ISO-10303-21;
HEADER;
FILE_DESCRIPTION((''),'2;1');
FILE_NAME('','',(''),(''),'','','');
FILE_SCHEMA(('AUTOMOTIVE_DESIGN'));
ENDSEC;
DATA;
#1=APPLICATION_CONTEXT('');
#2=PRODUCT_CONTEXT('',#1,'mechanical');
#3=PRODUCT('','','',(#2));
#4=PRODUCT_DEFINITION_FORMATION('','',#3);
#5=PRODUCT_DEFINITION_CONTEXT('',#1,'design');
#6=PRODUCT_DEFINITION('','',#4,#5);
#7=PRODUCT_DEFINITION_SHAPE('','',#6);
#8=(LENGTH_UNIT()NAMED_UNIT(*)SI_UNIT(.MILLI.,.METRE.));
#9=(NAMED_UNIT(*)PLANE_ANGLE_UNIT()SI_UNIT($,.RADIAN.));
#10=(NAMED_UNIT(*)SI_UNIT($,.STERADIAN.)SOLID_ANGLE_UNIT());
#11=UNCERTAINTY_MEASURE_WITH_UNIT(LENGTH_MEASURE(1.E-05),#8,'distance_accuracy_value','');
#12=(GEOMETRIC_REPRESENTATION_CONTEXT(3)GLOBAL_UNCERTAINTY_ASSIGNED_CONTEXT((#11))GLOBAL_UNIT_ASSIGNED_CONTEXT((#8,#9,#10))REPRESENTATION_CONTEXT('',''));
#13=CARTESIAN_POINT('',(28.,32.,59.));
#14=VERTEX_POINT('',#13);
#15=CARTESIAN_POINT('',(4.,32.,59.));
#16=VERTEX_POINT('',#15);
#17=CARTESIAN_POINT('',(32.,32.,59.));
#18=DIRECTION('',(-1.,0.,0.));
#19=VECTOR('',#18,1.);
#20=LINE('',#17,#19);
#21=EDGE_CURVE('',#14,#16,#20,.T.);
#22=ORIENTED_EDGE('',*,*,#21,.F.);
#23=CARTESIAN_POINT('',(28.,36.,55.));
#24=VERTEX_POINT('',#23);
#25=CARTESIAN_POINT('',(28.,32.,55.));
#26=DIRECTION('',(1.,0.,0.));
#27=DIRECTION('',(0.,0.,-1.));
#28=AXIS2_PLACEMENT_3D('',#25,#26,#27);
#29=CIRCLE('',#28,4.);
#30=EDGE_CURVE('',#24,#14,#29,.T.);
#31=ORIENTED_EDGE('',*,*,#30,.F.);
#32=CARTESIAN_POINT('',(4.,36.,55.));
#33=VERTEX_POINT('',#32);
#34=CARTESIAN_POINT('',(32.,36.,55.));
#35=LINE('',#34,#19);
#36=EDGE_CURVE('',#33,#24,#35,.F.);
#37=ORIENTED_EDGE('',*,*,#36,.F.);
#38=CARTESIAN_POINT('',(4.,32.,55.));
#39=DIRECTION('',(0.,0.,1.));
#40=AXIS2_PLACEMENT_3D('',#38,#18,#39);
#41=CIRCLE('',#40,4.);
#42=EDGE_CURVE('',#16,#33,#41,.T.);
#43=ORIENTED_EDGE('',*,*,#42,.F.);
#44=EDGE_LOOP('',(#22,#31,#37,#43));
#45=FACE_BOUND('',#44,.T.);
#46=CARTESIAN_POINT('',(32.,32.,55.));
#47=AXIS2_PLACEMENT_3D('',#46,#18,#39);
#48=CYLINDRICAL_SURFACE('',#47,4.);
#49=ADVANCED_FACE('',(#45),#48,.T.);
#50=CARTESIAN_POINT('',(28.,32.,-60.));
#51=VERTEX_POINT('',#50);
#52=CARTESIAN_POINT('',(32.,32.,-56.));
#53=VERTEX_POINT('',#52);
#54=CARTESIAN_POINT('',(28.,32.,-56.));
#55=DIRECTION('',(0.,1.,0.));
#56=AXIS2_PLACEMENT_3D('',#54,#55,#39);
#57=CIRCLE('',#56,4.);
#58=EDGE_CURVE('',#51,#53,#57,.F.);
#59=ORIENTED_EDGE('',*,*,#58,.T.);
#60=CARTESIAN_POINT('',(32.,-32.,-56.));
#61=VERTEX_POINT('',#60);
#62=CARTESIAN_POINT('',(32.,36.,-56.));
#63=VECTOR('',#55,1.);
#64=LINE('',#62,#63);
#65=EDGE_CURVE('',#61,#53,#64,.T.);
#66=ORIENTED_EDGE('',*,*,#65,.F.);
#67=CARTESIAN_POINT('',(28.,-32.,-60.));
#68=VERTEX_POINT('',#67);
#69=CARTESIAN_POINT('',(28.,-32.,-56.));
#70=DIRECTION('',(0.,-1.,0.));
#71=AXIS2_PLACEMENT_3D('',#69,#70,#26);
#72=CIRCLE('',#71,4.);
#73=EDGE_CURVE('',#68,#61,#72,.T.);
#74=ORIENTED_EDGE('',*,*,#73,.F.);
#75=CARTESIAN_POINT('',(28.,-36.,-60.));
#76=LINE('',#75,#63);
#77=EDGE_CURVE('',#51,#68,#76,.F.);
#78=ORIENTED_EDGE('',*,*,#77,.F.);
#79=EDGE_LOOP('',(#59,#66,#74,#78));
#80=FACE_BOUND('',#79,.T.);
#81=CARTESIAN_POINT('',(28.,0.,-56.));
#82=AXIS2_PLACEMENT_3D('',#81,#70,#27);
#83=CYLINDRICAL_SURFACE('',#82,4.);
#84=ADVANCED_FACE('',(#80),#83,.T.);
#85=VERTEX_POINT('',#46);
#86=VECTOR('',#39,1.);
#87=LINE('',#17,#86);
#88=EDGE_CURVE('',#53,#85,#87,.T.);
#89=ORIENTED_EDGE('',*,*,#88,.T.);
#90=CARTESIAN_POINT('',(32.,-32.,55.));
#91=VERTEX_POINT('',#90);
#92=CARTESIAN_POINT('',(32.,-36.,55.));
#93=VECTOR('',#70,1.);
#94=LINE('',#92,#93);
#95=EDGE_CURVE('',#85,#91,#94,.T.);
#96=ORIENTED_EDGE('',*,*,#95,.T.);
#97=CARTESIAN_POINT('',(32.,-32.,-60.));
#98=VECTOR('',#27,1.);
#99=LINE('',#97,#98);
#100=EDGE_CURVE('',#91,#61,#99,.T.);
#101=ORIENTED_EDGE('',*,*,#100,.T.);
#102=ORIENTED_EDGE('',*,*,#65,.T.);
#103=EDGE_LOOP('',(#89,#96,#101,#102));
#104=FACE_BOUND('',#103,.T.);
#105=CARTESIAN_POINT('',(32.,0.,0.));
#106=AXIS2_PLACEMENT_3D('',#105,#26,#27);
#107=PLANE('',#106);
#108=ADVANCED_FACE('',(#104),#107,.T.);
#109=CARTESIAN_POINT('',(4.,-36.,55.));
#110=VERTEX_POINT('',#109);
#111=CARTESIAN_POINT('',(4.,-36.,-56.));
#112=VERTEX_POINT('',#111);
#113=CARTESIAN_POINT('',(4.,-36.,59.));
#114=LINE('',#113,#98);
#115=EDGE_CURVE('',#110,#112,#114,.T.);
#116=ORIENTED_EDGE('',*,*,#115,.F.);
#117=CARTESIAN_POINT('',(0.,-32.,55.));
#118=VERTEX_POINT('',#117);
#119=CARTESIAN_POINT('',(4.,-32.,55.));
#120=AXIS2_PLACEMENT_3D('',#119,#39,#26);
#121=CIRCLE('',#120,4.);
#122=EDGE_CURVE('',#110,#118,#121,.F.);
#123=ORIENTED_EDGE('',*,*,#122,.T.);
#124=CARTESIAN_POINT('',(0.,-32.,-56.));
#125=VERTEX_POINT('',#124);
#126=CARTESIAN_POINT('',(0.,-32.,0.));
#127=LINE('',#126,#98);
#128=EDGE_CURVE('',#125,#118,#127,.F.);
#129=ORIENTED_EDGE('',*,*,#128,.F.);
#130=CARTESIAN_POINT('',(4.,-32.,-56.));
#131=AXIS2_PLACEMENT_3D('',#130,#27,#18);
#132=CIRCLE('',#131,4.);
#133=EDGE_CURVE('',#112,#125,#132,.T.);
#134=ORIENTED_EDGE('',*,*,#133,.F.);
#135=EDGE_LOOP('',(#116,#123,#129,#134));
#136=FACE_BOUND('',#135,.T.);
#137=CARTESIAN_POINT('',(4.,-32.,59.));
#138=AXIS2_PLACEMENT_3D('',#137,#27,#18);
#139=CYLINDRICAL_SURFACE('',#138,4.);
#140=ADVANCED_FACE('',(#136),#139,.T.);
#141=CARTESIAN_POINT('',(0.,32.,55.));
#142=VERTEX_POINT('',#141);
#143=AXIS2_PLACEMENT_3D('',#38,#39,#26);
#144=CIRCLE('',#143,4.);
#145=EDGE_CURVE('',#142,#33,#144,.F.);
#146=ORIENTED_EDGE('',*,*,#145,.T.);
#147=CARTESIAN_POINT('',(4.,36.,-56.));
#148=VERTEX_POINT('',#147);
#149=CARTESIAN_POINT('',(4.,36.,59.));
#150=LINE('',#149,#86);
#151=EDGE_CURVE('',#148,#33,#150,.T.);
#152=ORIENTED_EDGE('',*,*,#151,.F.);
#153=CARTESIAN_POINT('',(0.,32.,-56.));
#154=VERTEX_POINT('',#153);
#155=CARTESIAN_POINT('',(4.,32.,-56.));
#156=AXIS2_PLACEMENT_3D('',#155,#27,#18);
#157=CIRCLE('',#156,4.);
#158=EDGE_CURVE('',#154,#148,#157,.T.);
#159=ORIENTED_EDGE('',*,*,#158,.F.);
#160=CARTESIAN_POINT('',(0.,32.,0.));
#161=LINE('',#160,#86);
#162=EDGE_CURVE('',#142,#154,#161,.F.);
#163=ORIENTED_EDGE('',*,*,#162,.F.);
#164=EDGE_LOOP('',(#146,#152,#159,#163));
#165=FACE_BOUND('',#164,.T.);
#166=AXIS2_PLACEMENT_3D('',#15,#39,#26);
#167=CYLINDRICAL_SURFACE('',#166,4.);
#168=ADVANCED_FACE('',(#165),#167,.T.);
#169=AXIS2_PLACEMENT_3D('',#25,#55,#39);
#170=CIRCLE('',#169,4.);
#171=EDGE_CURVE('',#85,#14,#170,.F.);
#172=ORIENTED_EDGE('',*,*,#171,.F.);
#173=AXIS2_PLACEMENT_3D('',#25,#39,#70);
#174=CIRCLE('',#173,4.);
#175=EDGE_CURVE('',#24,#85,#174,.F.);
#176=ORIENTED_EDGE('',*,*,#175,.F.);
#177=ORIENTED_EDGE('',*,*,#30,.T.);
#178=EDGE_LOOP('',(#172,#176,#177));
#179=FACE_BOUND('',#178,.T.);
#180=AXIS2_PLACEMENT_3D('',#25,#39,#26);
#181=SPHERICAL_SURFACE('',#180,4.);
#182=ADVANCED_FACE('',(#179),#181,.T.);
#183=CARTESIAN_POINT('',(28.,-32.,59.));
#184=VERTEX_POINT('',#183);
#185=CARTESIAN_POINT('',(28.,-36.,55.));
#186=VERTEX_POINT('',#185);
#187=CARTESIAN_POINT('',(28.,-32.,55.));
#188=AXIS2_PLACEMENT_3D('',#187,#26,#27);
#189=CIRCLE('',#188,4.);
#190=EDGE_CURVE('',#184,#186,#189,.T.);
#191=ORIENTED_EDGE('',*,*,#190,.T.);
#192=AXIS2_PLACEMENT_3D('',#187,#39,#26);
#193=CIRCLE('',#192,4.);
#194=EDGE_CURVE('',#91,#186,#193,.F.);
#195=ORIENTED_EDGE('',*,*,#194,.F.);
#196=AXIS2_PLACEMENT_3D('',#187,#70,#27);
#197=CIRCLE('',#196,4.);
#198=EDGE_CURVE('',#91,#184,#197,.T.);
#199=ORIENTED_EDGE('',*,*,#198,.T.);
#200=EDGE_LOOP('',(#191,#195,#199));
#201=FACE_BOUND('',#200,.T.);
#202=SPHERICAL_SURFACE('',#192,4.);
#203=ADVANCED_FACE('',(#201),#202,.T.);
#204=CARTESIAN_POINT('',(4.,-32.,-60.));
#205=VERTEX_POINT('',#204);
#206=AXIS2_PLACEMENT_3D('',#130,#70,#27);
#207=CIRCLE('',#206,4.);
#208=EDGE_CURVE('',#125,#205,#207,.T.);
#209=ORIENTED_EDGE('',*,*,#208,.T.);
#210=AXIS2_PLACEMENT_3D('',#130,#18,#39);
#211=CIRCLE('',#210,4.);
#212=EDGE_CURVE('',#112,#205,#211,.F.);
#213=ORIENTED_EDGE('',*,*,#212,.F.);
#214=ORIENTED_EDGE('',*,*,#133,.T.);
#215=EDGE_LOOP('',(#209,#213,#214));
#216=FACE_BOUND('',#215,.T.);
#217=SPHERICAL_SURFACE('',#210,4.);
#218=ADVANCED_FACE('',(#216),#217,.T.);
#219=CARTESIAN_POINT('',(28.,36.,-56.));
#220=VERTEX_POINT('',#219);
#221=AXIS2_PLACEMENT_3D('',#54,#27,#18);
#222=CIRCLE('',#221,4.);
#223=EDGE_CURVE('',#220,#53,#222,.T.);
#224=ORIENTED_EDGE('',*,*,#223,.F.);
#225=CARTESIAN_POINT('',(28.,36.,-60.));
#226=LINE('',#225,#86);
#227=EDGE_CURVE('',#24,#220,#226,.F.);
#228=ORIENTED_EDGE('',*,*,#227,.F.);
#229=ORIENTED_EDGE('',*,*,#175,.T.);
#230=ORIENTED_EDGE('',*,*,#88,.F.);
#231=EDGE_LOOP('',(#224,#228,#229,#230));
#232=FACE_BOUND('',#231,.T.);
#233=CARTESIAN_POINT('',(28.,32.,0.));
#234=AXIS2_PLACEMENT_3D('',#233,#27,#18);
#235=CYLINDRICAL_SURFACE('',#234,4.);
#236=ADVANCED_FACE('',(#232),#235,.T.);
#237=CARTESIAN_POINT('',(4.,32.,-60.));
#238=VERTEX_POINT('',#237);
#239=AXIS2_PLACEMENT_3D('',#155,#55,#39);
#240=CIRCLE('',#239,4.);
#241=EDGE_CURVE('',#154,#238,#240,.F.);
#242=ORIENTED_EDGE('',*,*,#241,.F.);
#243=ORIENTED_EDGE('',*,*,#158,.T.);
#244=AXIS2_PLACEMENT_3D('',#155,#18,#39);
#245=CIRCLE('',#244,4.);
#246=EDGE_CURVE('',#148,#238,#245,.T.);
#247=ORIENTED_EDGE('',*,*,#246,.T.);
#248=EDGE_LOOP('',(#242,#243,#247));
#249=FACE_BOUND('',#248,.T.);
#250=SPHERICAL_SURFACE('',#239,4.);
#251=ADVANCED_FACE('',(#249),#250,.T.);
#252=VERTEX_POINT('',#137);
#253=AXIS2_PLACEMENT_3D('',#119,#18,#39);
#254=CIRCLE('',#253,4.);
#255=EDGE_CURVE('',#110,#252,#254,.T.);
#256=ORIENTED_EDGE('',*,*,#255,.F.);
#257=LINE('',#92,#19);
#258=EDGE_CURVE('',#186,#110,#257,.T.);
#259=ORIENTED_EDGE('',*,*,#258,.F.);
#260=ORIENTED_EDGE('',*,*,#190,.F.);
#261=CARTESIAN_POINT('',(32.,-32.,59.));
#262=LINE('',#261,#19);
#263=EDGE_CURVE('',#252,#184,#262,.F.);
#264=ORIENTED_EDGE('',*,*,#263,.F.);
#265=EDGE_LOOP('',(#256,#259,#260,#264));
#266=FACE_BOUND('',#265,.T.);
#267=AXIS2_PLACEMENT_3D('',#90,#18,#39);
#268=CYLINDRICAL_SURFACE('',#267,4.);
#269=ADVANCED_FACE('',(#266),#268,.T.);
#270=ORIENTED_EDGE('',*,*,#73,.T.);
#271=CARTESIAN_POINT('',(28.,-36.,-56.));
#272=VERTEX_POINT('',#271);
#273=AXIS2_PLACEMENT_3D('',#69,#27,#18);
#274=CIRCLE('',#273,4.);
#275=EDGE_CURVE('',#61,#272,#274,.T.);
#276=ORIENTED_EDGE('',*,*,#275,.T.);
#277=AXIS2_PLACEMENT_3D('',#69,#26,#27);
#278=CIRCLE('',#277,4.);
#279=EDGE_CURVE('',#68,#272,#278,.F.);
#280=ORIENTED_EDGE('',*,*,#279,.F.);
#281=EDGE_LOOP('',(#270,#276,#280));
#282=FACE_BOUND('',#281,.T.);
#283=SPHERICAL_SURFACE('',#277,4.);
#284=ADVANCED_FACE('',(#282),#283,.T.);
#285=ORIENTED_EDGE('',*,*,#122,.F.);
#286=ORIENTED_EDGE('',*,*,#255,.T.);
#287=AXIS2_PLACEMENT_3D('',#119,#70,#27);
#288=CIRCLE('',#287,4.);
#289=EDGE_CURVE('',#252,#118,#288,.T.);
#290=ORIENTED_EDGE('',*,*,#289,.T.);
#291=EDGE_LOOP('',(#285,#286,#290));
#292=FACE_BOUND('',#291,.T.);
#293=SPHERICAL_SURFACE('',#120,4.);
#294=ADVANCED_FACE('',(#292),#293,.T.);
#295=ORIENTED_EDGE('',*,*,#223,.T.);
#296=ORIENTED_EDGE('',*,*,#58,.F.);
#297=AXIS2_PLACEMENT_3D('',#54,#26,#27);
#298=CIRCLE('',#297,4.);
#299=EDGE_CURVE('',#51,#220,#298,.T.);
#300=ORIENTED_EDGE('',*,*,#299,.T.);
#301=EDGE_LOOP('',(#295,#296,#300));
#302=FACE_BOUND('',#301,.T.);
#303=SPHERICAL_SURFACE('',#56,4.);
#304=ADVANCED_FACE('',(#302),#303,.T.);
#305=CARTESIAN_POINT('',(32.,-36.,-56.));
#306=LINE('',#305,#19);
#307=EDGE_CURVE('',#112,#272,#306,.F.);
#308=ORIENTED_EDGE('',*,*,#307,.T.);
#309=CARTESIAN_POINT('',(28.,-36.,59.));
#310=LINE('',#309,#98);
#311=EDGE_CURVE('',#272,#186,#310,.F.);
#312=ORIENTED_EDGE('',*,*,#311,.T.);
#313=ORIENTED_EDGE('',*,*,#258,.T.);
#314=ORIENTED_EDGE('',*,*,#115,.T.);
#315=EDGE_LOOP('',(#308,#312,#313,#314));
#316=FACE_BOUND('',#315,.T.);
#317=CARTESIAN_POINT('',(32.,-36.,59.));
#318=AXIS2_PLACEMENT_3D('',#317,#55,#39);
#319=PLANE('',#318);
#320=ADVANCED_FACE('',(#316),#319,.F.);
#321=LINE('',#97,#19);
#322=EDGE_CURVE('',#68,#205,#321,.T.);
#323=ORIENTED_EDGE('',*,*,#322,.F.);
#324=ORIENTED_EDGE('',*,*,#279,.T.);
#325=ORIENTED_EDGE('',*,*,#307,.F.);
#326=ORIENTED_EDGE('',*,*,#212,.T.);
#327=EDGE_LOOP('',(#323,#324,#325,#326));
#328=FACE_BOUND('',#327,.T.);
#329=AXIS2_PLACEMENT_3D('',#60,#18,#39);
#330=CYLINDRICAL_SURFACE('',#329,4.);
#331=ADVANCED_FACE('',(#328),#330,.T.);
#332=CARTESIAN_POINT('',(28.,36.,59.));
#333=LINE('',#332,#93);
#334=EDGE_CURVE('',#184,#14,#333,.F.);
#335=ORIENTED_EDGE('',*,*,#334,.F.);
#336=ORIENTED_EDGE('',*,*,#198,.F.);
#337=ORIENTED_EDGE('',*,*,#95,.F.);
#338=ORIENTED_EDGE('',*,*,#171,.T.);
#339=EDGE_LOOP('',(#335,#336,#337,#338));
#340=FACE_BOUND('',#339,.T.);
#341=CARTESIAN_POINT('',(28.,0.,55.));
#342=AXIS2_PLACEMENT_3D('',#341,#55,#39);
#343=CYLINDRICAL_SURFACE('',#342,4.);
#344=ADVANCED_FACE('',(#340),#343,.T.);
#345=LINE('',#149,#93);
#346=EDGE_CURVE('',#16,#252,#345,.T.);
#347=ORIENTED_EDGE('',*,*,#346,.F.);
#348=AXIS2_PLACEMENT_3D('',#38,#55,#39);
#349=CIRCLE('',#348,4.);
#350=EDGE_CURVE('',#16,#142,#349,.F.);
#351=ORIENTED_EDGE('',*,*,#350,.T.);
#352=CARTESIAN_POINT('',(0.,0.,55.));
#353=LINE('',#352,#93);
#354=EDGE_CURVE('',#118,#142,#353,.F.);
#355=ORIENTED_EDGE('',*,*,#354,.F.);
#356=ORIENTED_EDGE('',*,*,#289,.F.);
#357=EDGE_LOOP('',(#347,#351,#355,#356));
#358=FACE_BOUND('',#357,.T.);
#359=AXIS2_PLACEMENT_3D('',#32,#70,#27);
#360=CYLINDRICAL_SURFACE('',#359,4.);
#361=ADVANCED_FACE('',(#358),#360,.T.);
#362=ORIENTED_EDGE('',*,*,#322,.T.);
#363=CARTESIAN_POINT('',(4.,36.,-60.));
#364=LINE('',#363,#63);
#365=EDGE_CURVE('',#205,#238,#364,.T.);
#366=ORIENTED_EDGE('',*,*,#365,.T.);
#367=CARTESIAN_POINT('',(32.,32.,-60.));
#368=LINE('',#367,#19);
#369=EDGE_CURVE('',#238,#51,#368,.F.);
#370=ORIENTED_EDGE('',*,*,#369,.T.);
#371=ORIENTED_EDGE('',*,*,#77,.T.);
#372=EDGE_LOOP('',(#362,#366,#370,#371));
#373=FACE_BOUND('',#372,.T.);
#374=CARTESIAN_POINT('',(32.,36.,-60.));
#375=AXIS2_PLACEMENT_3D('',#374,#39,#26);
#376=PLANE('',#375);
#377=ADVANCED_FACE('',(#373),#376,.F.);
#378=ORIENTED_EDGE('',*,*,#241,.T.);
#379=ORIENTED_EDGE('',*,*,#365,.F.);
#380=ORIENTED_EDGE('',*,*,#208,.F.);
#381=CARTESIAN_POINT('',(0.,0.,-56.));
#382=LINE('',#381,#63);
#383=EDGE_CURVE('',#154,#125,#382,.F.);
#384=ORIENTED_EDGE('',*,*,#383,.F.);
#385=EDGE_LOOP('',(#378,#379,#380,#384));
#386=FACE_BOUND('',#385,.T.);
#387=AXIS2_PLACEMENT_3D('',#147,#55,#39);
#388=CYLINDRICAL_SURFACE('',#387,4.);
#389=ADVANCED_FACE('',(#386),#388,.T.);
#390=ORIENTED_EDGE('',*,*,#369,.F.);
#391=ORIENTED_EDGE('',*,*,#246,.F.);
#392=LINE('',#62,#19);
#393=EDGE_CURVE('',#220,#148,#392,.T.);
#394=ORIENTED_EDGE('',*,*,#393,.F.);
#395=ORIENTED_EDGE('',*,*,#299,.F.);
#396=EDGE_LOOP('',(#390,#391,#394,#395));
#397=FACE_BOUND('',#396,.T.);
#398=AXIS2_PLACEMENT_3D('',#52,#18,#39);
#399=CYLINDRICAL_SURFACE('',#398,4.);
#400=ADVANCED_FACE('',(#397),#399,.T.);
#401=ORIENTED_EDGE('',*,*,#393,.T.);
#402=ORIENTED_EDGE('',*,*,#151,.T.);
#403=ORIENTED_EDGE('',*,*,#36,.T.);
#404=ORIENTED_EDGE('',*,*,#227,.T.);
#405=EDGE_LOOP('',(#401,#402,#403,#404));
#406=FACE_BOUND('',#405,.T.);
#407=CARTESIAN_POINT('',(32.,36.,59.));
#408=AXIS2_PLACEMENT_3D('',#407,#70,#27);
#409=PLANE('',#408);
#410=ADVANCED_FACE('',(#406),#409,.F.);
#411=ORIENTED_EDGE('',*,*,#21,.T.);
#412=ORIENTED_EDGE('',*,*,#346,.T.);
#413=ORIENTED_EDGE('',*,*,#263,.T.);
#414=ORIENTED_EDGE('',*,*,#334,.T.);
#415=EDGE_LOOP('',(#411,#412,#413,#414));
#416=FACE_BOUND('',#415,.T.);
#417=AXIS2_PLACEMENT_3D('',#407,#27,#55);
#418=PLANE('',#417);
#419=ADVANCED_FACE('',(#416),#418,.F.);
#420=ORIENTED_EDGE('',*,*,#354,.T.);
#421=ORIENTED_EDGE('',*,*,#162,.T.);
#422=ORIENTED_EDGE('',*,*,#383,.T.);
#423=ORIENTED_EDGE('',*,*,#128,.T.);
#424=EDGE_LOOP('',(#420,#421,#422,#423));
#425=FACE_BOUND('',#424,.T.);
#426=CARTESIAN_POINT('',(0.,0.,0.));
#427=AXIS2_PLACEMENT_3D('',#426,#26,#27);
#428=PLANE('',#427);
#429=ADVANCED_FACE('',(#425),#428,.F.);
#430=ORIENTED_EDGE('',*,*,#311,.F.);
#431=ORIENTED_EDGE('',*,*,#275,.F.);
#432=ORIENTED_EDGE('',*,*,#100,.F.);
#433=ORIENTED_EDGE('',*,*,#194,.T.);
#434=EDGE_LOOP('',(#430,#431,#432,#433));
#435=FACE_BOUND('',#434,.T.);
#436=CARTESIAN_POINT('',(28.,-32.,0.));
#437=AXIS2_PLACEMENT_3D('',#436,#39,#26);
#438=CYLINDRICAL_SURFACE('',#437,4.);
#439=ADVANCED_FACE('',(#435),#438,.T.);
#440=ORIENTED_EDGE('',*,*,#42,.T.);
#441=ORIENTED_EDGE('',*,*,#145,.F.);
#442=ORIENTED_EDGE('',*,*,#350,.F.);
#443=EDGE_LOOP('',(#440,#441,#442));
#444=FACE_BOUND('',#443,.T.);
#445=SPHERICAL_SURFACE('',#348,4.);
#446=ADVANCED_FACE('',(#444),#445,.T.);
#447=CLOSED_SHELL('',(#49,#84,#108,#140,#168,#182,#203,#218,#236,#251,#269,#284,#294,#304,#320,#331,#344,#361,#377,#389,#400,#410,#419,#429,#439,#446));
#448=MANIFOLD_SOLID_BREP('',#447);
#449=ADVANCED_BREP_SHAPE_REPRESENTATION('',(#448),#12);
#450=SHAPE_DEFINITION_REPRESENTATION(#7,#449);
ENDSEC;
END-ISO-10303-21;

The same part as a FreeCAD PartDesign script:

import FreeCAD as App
import Part
import Sketcher

V = App.Vector
Q = App.Units.Quantity


def add_polygon(sketch, points):
    """Adds a closed chain of lines whose ends are joined by coincident constraints."""
    first, n = sketch.GeometryCount, len(points)
    for a, b in zip(points, points[1:] + points[:1]):
        sketch.addGeometry(Part.LineSegment(App.Vector(*a, 0), App.Vector(*b, 0)), False)
    for i in range(n):
        sketch.addConstraint(Sketcher.Constraint("Coincident", first + i, 2, first + (i + 1) % n, 1))

doc = App.newDocument("Part")
body = doc.addObject("PartDesign::Body", "Body")

sketch1 = body.newObject("Sketcher::SketchObject", "Sketch")
sketch1.AttachmentSupport = (doc.getObject("YZ_Plane"), [""])
sketch1.MapMode = "FlatFace"
add_polygon(sketch1, [(36, 59), (-36, 59), (-36, -60), (36, -60)])
sketch1.addConstraint(Sketcher.Constraint("Horizontal", 0))
sketch1.addConstraint(Sketcher.Constraint("Vertical", 1))
sketch1.addConstraint(Sketcher.Constraint("Horizontal", 2))
sketch1.addConstraint(Sketcher.Constraint("Vertical", 3))
sketch1.addConstraint(Sketcher.Constraint("DistanceX", 0, 2, 0, 1, Q("72 mm")))
sketch1.addConstraint(Sketcher.Constraint("DistanceY", 1, 2, 1, 1, Q("119 mm")))
sketch1.addConstraint(Sketcher.Constraint("DistanceX", 0, 2, -1, 1, Q("36 mm")))
sketch1.addConstraint(Sketcher.Constraint("DistanceY", -1, 1, 0, 2, Q("59 mm")))
pad1 = body.newObject("PartDesign::Pad", "Pad")
pad1.Profile = sketch1
pad1.Length = 32
doc.recompute()

fillet = body.newObject("PartDesign::Fillet", "Fillet")
fillet.Base = (pad1, ["Edge1"])
fillet.UseAllEdges = True
fillet.Radius = 4

doc.recompute()
